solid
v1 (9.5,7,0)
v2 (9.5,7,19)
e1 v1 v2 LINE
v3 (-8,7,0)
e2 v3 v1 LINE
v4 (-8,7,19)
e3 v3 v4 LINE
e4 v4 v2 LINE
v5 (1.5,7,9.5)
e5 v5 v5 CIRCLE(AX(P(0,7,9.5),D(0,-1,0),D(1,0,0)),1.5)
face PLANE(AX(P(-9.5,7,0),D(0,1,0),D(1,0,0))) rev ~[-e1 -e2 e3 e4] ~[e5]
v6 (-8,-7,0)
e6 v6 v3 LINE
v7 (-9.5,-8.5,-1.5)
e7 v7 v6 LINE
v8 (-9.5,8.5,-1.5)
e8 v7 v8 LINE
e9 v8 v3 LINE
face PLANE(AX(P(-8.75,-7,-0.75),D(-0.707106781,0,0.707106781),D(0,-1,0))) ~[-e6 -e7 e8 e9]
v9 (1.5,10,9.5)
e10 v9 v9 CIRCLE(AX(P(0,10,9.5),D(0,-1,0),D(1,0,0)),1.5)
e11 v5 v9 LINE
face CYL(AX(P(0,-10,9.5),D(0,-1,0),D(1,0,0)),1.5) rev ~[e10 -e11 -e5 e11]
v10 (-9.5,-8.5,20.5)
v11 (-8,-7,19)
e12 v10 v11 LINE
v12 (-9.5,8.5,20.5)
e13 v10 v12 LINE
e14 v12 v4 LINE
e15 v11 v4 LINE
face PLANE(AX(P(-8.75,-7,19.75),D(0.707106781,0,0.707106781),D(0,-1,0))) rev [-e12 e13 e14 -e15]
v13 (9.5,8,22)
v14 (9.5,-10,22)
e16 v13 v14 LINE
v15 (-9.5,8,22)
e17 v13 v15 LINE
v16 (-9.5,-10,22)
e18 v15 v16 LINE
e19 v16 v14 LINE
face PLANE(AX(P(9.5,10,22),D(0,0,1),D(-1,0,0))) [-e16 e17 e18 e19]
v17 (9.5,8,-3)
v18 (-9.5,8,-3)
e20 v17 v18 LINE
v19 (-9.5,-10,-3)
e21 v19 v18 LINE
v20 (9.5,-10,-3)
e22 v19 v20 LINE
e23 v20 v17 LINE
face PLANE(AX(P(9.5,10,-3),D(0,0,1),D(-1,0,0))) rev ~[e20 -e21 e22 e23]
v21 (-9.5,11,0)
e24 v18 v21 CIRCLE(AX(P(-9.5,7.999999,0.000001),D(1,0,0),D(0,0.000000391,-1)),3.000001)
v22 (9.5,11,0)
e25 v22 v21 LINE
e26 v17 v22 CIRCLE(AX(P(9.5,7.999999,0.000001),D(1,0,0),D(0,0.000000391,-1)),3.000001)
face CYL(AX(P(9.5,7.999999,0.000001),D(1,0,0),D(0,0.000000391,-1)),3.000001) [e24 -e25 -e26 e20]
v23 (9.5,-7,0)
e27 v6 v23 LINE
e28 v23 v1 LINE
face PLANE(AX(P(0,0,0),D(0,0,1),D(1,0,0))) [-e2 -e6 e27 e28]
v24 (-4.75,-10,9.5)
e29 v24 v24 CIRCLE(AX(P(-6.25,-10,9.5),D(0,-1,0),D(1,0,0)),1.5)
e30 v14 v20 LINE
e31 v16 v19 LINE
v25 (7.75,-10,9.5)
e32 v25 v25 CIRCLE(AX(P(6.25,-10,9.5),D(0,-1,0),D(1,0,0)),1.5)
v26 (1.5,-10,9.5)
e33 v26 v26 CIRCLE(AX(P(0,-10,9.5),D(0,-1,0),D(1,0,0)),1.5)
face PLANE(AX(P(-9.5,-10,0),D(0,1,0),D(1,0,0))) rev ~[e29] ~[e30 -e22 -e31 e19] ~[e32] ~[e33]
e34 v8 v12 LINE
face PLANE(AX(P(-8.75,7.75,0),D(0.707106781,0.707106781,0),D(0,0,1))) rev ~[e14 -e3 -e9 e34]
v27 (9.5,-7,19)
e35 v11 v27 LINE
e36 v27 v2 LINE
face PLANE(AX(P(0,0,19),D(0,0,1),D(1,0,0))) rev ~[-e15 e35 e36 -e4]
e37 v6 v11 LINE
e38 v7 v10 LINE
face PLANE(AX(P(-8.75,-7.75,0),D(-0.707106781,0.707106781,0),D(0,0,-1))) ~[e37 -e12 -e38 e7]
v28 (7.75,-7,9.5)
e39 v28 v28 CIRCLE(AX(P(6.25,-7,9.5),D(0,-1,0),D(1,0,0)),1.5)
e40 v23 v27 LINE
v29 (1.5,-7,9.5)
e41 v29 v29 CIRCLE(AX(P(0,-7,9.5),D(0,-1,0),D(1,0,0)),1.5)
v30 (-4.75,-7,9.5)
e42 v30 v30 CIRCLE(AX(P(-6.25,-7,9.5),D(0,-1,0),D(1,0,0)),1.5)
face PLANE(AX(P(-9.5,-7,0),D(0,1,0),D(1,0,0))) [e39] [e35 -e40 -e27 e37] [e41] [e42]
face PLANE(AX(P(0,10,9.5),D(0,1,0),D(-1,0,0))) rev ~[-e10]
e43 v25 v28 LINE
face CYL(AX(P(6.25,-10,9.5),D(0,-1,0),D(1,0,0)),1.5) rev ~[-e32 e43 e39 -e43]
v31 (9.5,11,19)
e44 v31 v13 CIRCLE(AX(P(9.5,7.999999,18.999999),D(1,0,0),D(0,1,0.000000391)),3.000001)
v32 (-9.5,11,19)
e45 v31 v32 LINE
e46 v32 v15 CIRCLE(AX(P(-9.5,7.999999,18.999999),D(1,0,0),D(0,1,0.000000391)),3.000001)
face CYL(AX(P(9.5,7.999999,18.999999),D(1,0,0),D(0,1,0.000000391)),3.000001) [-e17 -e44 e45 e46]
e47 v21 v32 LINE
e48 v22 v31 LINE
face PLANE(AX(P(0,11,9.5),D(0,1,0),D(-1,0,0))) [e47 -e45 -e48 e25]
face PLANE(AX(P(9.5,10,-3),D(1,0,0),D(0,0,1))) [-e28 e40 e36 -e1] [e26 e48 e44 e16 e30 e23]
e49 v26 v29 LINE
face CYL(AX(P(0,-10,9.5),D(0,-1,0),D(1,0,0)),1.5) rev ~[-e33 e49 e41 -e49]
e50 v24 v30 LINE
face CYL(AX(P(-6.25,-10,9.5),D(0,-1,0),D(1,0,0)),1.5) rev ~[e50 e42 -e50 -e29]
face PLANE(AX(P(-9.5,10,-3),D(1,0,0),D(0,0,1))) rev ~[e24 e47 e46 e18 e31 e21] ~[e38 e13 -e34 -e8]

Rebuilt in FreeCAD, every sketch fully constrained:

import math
import FreeCAD as App
import Part
import Sketcher
Q = App.Units.Quantity


def edges_at(feature, points):
    """Names of the edges that pass closest to the given points."""
    edges = feature.Shape.Edges
    near = lambda p: min(range(len(edges)), key=lambda i: edges[i].distToShape(Part.Vertex(*p))[0])
    return sorted({f"Edge{near(p) + 1}" for p in points})


def faces_at(feature, points):
    """Names of the faces that lie closest to the given points."""
    faces = feature.Shape.Faces
    near = lambda p: min(range(len(faces)), key=lambda i: faces[i].distToShape(Part.Vertex(*p))[0])
    return sorted({f"Face{near(p) + 1}" for p in points})

doc = App.newDocument("Part")
body = doc.addObject("PartDesign::Body", "Body")

# Sketch on XY plane
sketch1 = body.newObject("Sketcher::SketchObject", "Sketch")
sketch1.AttachmentSupport = (doc.getObject("XY_Plane"), [""])
sketch1.MapMode = "FlatFace"
sketch1.addGeometry([
    Part.LineSegment(App.Vector(-10, 7, 0), App.Vector(-10, -7, 0)),
    Part.LineSegment(App.Vector(-10, -7, 0), App.Vector(10, -7, 0)),
    Part.LineSegment(App.Vector(10, -7, 0), App.Vector(10, 7, 0)),
    Part.LineSegment(App.Vector(10, 7, 0), App.Vector(-10, 7, 0)),
], False)
sketch1.addConstraint([
    Sketcher.Constraint("Coincident", 0, 2, 1, 1),
    Sketcher.Constraint("Coincident", 1, 2, 2, 1),
    Sketcher.Constraint("Coincident", 2, 2, 3, 1),
    Sketcher.Constraint("Coincident", 3, 2, 0, 1),
    Sketcher.Constraint("Vertical", 0),
    Sketcher.Constraint("Horizontal", 1),
    Sketcher.Constraint("Vertical", 2),
    Sketcher.Constraint("Horizontal", 3),
    Sketcher.Constraint("Symmetric", 0, 2, 2, 2, -1, 1),
    Sketcher.Constraint("DistanceX", 1, 1, 1, 2, Q("19 mm")),
    Sketcher.Constraint("DistanceY", 0, 2, 0, 1, Q("14 mm")),
])
pad1 = body.newObject("PartDesign::Pad", "Pad")
pad1.Profile = sketch1
pad1.Length = 19
doc.recompute()

thickness = body.newObject("PartDesign::Thickness", "Thickness")
thickness.Base = (pad1, faces_at(pad1, [(-9.5, 0, 9.5), (9.5, 0, 9.5)]))
thickness.Value = 3
thickness.Reversed = False
thickness.Join = "Intersection"

# Sketch on XZ plane
sketch2 = body.newObject("Sketcher::SketchObject", "Sketch001")
sketch2.AttachmentSupport = (doc.getObject("XZ_Plane"), [""])
sketch2.MapMode = "FlatFace"
sketch2.AttachmentOffset = App.Placement(App.Vector(0, 0, 10), App.Rotation())
sketch2.addGeometry(Part.Circle(App.Vector(0, 9.5, 0), App.Vector(0, 0, 1), 1.5), False)
sketch2.addConstraint([
    Sketcher.Constraint("PointOnObject", 0, 3, -2),
    Sketcher.Constraint("Diameter", 0, Q("3 mm")),
    Sketcher.Constraint("DistanceY", -1, 1, 0, 3, Q("9.5 mm")),
])
pocket1 = body.newObject("PartDesign::Pocket", "Pocket")
pocket1.Profile = sketch2
pocket1.Length = 20

# Sketch on XZ plane
sketch3 = body.newObject("Sketcher::SketchObject", "Sketch002")
sketch3.AttachmentSupport = (doc.getObject("XZ_Plane"), [""])
sketch3.MapMode = "FlatFace"
sketch3.AttachmentOffset = App.Placement(App.Vector(0, 0, 10), App.Rotation())
sketch3.addGeometry([
    Part.Circle(App.Vector(-6.2, 9.5, 0), App.Vector(0, 0, 1), 1.5),
    Part.Circle(App.Vector(6.2, 9.5, 0), App.Vector(0, 0, 1), 1.5),
], False)
sketch3.addConstraint([
    Sketcher.Constraint("Equal", 0, 1),
    Sketcher.Constraint("Symmetric", 0, 3, 1, 3, -2),
    Sketcher.Constraint("Diameter", 0, Q("3 mm")),
    Sketcher.Constraint("DistanceY", -1, 1, 0, 3, Q("9.5 mm")),
    Sketcher.Constraint("DistanceX", 0, 3, 1, 3, Q("12.5 mm")),
])
pocket2 = body.newObject("PartDesign::Pocket", "Pocket001")
pocket2.Profile = sketch3
pocket2.Length = 3
doc.recompute()

chamfer = body.newObject("PartDesign::Chamfer", "Chamfer")
chamfer.Base = (pocket2, edges_at(pocket2, [
    (-9.5, 0, 0),
    (-9.5, 0, 19),
    (-9.5, 7, 9.5),
    (-9.5, -7, 9.5),
]))
chamfer.Size = 1.5

# Sketch on XZ plane
sketch4 = body.newObject("Sketcher::SketchObject", "Sketch003")
sketch4.AttachmentSupport = (doc.getObject("XZ_Plane"), [""])
sketch4.MapMode = "FlatFace"
sketch4.AttachmentOffset = App.Placement(App.Vector(0, 0, -10), App.Rotation())
sketch4.addGeometry([
    Part.LineSegment(App.Vector(10, 22, 0), App.Vector(10, -3, 0)),
    Part.LineSegment(App.Vector(10, -3, 0), App.Vector(-10, -3, 0)),
    Part.LineSegment(App.Vector(-10, -3, 0), App.Vector(-10, 22, 0)),
    Part.LineSegment(App.Vector(-10, 22, 0), App.Vector(10, 22, 0)),
], False)
sketch4.addConstraint([
    Sketcher.Constraint("Coincident", 0, 2, 1, 1),
    Sketcher.Constraint("Coincident", 1, 2, 2, 1),
    Sketcher.Constraint("Coincident", 2, 2, 3, 1),
    Sketcher.Constraint("Coincident", 3, 2, 0, 1),
    Sketcher.Constraint("Vertical", 0),
    Sketcher.Constraint("Horizontal", 1),
    Sketcher.Constraint("Vertical", 2),
    Sketcher.Constraint("Horizontal", 3),
    Sketcher.Constraint("DistanceX", 1, 2, 1, 1, Q("19 mm")),
    Sketcher.Constraint("DistanceY", 0, 2, 0, 1, Q("25 mm")),
    Sketcher.Constraint("DistanceY", 0, 2, -1, 1, Q("3 mm")),
    Sketcher.Constraint("DistanceX", -1, 1, 0, 2, Q("9.5 mm")),
])
pad2 = body.newObject("PartDesign::Pad", "Pad001")
pad2.Profile = sketch4
pad2.Length = 1
pad2.Reversed = True

# Sketch on YZ plane
sketch5 = body.newObject("Sketcher::SketchObject", "Sketch004")
sketch5.AttachmentSupport = (doc.getObject("YZ_Plane"), [""])
sketch5.MapMode = "FlatFace"
sketch5.AttachmentOffset = App.Placement(App.Vector(0, 0, 9.5), App.Rotation())
sketch5.addGeometry([
    Part.ArcOfCircle(Part.Circle(App.Vector(8, 19, 0), App.Vector(0, 0, 1), 3), math.radians(0), math.radians(90)),  # 0
    Part.LineSegment(App.Vector(11, 19, 0), App.Vector(11, 22, 0)),  # 1
    Part.LineSegment(App.Vector(11, 22, 0), App.Vector(8, 22, 0)),  # 2
    Part.ArcOfCircle(Part.Circle(App.Vector(8, 0, 0), App.Vector(0, 0, 1), 3), math.radians(-90), math.radians(0)),  # 3
    Part.LineSegment(App.Vector(8, -3, 0), App.Vector(11, -3, 0)),  # 4
    Part.LineSegment(App.Vector(11, -3, 0), App.Vector(11, 0, 0)),  # 5
], False)
sketch5.addConstraint([
    Sketcher.Constraint("Tangent", 0, 1, 1, 1),
    Sketcher.Constraint("Coincident", 1, 2, 2, 1),
    Sketcher.Constraint("Tangent", 2, 2, 0, 2),
    Sketcher.Constraint("Tangent", 3, 1, 4, 1),
    Sketcher.Constraint("Coincident", 4, 2, 5, 1),
    Sketcher.Constraint("Tangent", 5, 2, 3, 2),
    Sketcher.Constraint("Vertical", 1),
    Sketcher.Constraint("Horizontal", 2),
    Sketcher.Constraint("Horizontal", 4),
    Sketcher.Constraint("Vertical", 5),
    Sketcher.Constraint("Equal", 0, 3),
    Sketcher.Constraint("PointOnObject", 3, 3, -1),
    Sketcher.Constraint("Vertical", 0, 3, 3, 3),
    Sketcher.Constraint("Radius", 0, Q("3.000001 mm")),
    Sketcher.Constraint("DistanceX", -1, 1, 0, 3, Q("7.999999 mm")),
    Sketcher.Constraint("DistanceY", -1, 1, 0, 3, Q("18.999999 mm")),
])
pocket3 = body.newObject("PartDesign::Pocket", "Pocket002")
pocket3.Profile = sketch5
pocket3.Length = 24

doc.recompute()
